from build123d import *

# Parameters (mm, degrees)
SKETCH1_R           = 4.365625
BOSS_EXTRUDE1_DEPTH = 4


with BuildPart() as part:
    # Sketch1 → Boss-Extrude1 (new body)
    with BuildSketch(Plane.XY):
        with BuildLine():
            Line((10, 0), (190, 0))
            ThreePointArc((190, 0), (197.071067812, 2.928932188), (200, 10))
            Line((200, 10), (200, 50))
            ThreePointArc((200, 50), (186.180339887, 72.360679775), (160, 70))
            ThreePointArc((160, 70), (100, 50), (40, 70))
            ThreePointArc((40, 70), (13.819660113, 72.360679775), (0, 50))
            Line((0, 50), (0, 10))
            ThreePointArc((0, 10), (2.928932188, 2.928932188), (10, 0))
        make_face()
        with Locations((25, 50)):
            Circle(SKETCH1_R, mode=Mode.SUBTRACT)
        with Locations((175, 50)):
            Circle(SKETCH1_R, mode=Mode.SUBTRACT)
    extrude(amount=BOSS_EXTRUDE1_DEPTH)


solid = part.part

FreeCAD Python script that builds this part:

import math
import FreeCAD as App
import Part
import Sketcher
Q = App.Units.Quantity

doc = App.newDocument("Part")
params = doc.addObject("Spreadsheet::Sheet", "Params")
for row, (alias, value) in enumerate([
    ("sketch1_radius", "10 mm"),
    ("sketch1_radius2", "25 mm"),
    ("sketch1_radius3", "100 mm"),
    ("sketch1_width", "180 mm"),
    ("sketch1_height", "40 mm"),
    ("pad1_length", "4 mm"),
], start=1):
    params.set(f"A{row}", alias)
    params.set(f"B{row}", "=" + value)
    params.setAlias(f"B{row}", alias)

body = doc.addObject("PartDesign::Body", "Body")

sketch1 = body.newObject("Sketcher::SketchObject", "Sketch")
sketch1.AttachmentSupport = (doc.getObject("XY_Plane"), [""])
sketch1.MapMode = "FlatFace"
sketch1.addGeometry([
    Part.LineSegment(App.Vector(10, 0, 0), App.Vector(190, 0, 0)),
    Part.ArcOfCircle(Part.Circle(App.Vector(190, 10, 0), App.Vector(0, 0, 1), 10), math.radians(-90), math.radians(0)),
    Part.LineSegment(App.Vector(200, 10, 0), App.Vector(200, 50, 0)),
    Part.ArcOfCircle(Part.Circle(App.Vector(175, 50, 0), App.Vector(0, 0, 1), 25), math.radians(0), math.radians(127)),
    Part.ArcOfCircle(Part.Circle(App.Vector(100, 150, 0), App.Vector(0, 0, 1), 100), math.radians(-127), math.radians(-53)),
    Part.ArcOfCircle(Part.Circle(App.Vector(25, 50, 0), App.Vector(0, 0, 1), 25), math.radians(53), math.radians(180)),
    Part.LineSegment(App.Vector(0, 50, 0), App.Vector(0, 10, 0)),
    Part.ArcOfCircle(Part.Circle(App.Vector(10, 10, 0), App.Vector(0, 0, 1), 10), math.radians(180), math.radians(270)),
    Part.Circle(App.Vector(25, 50, 0), App.Vector(0, 0, 1), 4.4),
    Part.Circle(App.Vector(175, 50, 0), App.Vector(0, 0, 1), 4.4),
], False)
sketch1.addConstraint([
    Sketcher.Constraint("Tangent", 0, 2, 1, 1),
    Sketcher.Constraint("Tangent", 1, 2, 2, 1),
    Sketcher.Constraint("Tangent", 2, 2, 3, 1),
    Sketcher.Constraint("Tangent", 3, 2, 4, 2),
    Sketcher.Constraint("Tangent", 4, 1, 5, 1),
    Sketcher.Constraint("Tangent", 5, 2, 6, 1),
    Sketcher.Constraint("Tangent", 6, 2, 7, 1),
    Sketcher.Constraint("Tangent", 7, 2, 0, 1),
    Sketcher.Constraint("Horizontal", 0),
    Sketcher.Constraint("Vertical", 2),
    Sketcher.Constraint("Vertical", 6),
    Sketcher.Constraint("Coincident", 8, 3, 5, 3),
    Sketcher.Constraint("Coincident", 9, 3, 3, 3),
    Sketcher.Constraint("Equal", 3, 5),
    Sketcher.Constraint("Equal", 1, 7),
    Sketcher.Constraint("Equal", 8, 9),
    Sketcher.Constraint("PointOnObject", 0, 2, -1),
    Sketcher.Constraint("PointOnObject", 5, 2, -2),
    Sketcher.Constraint("Horizontal", 3, 3, 5, 3),
    Sketcher.Constraint("Radius", 1, Q("10 mm")),
    Sketcher.Constraint("Radius", 3, Q("25 mm")),
    Sketcher.Constraint("Radius", 4, Q("100 mm")),
    Sketcher.Constraint("DistanceX", 0, 1, 0, 2, Q("180 mm")),
    Sketcher.Constraint("DistanceY", 2, 1, 2, 2, Q("40 mm")),
    Sketcher.Constraint("Diameter", 8, Q("8.73125 mm")),
])
sketch1.setExpression("Constraints[19]", "Params.sketch1_radius")
sketch1.setExpression("Constraints[20]", "Params.sketch1_radius2")
sketch1.setExpression("Constraints[21]", "Params.sketch1_radius3")
sketch1.setExpression("Constraints[22]", "Params.sketch1_width")
sketch1.setExpression("Constraints[23]", "Params.sketch1_height")
pad1 = body.newObject("PartDesign::Pad", "Pad")
pad1.Profile = sketch1
pad1.setExpression("Length", "Params.pad1_length")

doc.recompute()
